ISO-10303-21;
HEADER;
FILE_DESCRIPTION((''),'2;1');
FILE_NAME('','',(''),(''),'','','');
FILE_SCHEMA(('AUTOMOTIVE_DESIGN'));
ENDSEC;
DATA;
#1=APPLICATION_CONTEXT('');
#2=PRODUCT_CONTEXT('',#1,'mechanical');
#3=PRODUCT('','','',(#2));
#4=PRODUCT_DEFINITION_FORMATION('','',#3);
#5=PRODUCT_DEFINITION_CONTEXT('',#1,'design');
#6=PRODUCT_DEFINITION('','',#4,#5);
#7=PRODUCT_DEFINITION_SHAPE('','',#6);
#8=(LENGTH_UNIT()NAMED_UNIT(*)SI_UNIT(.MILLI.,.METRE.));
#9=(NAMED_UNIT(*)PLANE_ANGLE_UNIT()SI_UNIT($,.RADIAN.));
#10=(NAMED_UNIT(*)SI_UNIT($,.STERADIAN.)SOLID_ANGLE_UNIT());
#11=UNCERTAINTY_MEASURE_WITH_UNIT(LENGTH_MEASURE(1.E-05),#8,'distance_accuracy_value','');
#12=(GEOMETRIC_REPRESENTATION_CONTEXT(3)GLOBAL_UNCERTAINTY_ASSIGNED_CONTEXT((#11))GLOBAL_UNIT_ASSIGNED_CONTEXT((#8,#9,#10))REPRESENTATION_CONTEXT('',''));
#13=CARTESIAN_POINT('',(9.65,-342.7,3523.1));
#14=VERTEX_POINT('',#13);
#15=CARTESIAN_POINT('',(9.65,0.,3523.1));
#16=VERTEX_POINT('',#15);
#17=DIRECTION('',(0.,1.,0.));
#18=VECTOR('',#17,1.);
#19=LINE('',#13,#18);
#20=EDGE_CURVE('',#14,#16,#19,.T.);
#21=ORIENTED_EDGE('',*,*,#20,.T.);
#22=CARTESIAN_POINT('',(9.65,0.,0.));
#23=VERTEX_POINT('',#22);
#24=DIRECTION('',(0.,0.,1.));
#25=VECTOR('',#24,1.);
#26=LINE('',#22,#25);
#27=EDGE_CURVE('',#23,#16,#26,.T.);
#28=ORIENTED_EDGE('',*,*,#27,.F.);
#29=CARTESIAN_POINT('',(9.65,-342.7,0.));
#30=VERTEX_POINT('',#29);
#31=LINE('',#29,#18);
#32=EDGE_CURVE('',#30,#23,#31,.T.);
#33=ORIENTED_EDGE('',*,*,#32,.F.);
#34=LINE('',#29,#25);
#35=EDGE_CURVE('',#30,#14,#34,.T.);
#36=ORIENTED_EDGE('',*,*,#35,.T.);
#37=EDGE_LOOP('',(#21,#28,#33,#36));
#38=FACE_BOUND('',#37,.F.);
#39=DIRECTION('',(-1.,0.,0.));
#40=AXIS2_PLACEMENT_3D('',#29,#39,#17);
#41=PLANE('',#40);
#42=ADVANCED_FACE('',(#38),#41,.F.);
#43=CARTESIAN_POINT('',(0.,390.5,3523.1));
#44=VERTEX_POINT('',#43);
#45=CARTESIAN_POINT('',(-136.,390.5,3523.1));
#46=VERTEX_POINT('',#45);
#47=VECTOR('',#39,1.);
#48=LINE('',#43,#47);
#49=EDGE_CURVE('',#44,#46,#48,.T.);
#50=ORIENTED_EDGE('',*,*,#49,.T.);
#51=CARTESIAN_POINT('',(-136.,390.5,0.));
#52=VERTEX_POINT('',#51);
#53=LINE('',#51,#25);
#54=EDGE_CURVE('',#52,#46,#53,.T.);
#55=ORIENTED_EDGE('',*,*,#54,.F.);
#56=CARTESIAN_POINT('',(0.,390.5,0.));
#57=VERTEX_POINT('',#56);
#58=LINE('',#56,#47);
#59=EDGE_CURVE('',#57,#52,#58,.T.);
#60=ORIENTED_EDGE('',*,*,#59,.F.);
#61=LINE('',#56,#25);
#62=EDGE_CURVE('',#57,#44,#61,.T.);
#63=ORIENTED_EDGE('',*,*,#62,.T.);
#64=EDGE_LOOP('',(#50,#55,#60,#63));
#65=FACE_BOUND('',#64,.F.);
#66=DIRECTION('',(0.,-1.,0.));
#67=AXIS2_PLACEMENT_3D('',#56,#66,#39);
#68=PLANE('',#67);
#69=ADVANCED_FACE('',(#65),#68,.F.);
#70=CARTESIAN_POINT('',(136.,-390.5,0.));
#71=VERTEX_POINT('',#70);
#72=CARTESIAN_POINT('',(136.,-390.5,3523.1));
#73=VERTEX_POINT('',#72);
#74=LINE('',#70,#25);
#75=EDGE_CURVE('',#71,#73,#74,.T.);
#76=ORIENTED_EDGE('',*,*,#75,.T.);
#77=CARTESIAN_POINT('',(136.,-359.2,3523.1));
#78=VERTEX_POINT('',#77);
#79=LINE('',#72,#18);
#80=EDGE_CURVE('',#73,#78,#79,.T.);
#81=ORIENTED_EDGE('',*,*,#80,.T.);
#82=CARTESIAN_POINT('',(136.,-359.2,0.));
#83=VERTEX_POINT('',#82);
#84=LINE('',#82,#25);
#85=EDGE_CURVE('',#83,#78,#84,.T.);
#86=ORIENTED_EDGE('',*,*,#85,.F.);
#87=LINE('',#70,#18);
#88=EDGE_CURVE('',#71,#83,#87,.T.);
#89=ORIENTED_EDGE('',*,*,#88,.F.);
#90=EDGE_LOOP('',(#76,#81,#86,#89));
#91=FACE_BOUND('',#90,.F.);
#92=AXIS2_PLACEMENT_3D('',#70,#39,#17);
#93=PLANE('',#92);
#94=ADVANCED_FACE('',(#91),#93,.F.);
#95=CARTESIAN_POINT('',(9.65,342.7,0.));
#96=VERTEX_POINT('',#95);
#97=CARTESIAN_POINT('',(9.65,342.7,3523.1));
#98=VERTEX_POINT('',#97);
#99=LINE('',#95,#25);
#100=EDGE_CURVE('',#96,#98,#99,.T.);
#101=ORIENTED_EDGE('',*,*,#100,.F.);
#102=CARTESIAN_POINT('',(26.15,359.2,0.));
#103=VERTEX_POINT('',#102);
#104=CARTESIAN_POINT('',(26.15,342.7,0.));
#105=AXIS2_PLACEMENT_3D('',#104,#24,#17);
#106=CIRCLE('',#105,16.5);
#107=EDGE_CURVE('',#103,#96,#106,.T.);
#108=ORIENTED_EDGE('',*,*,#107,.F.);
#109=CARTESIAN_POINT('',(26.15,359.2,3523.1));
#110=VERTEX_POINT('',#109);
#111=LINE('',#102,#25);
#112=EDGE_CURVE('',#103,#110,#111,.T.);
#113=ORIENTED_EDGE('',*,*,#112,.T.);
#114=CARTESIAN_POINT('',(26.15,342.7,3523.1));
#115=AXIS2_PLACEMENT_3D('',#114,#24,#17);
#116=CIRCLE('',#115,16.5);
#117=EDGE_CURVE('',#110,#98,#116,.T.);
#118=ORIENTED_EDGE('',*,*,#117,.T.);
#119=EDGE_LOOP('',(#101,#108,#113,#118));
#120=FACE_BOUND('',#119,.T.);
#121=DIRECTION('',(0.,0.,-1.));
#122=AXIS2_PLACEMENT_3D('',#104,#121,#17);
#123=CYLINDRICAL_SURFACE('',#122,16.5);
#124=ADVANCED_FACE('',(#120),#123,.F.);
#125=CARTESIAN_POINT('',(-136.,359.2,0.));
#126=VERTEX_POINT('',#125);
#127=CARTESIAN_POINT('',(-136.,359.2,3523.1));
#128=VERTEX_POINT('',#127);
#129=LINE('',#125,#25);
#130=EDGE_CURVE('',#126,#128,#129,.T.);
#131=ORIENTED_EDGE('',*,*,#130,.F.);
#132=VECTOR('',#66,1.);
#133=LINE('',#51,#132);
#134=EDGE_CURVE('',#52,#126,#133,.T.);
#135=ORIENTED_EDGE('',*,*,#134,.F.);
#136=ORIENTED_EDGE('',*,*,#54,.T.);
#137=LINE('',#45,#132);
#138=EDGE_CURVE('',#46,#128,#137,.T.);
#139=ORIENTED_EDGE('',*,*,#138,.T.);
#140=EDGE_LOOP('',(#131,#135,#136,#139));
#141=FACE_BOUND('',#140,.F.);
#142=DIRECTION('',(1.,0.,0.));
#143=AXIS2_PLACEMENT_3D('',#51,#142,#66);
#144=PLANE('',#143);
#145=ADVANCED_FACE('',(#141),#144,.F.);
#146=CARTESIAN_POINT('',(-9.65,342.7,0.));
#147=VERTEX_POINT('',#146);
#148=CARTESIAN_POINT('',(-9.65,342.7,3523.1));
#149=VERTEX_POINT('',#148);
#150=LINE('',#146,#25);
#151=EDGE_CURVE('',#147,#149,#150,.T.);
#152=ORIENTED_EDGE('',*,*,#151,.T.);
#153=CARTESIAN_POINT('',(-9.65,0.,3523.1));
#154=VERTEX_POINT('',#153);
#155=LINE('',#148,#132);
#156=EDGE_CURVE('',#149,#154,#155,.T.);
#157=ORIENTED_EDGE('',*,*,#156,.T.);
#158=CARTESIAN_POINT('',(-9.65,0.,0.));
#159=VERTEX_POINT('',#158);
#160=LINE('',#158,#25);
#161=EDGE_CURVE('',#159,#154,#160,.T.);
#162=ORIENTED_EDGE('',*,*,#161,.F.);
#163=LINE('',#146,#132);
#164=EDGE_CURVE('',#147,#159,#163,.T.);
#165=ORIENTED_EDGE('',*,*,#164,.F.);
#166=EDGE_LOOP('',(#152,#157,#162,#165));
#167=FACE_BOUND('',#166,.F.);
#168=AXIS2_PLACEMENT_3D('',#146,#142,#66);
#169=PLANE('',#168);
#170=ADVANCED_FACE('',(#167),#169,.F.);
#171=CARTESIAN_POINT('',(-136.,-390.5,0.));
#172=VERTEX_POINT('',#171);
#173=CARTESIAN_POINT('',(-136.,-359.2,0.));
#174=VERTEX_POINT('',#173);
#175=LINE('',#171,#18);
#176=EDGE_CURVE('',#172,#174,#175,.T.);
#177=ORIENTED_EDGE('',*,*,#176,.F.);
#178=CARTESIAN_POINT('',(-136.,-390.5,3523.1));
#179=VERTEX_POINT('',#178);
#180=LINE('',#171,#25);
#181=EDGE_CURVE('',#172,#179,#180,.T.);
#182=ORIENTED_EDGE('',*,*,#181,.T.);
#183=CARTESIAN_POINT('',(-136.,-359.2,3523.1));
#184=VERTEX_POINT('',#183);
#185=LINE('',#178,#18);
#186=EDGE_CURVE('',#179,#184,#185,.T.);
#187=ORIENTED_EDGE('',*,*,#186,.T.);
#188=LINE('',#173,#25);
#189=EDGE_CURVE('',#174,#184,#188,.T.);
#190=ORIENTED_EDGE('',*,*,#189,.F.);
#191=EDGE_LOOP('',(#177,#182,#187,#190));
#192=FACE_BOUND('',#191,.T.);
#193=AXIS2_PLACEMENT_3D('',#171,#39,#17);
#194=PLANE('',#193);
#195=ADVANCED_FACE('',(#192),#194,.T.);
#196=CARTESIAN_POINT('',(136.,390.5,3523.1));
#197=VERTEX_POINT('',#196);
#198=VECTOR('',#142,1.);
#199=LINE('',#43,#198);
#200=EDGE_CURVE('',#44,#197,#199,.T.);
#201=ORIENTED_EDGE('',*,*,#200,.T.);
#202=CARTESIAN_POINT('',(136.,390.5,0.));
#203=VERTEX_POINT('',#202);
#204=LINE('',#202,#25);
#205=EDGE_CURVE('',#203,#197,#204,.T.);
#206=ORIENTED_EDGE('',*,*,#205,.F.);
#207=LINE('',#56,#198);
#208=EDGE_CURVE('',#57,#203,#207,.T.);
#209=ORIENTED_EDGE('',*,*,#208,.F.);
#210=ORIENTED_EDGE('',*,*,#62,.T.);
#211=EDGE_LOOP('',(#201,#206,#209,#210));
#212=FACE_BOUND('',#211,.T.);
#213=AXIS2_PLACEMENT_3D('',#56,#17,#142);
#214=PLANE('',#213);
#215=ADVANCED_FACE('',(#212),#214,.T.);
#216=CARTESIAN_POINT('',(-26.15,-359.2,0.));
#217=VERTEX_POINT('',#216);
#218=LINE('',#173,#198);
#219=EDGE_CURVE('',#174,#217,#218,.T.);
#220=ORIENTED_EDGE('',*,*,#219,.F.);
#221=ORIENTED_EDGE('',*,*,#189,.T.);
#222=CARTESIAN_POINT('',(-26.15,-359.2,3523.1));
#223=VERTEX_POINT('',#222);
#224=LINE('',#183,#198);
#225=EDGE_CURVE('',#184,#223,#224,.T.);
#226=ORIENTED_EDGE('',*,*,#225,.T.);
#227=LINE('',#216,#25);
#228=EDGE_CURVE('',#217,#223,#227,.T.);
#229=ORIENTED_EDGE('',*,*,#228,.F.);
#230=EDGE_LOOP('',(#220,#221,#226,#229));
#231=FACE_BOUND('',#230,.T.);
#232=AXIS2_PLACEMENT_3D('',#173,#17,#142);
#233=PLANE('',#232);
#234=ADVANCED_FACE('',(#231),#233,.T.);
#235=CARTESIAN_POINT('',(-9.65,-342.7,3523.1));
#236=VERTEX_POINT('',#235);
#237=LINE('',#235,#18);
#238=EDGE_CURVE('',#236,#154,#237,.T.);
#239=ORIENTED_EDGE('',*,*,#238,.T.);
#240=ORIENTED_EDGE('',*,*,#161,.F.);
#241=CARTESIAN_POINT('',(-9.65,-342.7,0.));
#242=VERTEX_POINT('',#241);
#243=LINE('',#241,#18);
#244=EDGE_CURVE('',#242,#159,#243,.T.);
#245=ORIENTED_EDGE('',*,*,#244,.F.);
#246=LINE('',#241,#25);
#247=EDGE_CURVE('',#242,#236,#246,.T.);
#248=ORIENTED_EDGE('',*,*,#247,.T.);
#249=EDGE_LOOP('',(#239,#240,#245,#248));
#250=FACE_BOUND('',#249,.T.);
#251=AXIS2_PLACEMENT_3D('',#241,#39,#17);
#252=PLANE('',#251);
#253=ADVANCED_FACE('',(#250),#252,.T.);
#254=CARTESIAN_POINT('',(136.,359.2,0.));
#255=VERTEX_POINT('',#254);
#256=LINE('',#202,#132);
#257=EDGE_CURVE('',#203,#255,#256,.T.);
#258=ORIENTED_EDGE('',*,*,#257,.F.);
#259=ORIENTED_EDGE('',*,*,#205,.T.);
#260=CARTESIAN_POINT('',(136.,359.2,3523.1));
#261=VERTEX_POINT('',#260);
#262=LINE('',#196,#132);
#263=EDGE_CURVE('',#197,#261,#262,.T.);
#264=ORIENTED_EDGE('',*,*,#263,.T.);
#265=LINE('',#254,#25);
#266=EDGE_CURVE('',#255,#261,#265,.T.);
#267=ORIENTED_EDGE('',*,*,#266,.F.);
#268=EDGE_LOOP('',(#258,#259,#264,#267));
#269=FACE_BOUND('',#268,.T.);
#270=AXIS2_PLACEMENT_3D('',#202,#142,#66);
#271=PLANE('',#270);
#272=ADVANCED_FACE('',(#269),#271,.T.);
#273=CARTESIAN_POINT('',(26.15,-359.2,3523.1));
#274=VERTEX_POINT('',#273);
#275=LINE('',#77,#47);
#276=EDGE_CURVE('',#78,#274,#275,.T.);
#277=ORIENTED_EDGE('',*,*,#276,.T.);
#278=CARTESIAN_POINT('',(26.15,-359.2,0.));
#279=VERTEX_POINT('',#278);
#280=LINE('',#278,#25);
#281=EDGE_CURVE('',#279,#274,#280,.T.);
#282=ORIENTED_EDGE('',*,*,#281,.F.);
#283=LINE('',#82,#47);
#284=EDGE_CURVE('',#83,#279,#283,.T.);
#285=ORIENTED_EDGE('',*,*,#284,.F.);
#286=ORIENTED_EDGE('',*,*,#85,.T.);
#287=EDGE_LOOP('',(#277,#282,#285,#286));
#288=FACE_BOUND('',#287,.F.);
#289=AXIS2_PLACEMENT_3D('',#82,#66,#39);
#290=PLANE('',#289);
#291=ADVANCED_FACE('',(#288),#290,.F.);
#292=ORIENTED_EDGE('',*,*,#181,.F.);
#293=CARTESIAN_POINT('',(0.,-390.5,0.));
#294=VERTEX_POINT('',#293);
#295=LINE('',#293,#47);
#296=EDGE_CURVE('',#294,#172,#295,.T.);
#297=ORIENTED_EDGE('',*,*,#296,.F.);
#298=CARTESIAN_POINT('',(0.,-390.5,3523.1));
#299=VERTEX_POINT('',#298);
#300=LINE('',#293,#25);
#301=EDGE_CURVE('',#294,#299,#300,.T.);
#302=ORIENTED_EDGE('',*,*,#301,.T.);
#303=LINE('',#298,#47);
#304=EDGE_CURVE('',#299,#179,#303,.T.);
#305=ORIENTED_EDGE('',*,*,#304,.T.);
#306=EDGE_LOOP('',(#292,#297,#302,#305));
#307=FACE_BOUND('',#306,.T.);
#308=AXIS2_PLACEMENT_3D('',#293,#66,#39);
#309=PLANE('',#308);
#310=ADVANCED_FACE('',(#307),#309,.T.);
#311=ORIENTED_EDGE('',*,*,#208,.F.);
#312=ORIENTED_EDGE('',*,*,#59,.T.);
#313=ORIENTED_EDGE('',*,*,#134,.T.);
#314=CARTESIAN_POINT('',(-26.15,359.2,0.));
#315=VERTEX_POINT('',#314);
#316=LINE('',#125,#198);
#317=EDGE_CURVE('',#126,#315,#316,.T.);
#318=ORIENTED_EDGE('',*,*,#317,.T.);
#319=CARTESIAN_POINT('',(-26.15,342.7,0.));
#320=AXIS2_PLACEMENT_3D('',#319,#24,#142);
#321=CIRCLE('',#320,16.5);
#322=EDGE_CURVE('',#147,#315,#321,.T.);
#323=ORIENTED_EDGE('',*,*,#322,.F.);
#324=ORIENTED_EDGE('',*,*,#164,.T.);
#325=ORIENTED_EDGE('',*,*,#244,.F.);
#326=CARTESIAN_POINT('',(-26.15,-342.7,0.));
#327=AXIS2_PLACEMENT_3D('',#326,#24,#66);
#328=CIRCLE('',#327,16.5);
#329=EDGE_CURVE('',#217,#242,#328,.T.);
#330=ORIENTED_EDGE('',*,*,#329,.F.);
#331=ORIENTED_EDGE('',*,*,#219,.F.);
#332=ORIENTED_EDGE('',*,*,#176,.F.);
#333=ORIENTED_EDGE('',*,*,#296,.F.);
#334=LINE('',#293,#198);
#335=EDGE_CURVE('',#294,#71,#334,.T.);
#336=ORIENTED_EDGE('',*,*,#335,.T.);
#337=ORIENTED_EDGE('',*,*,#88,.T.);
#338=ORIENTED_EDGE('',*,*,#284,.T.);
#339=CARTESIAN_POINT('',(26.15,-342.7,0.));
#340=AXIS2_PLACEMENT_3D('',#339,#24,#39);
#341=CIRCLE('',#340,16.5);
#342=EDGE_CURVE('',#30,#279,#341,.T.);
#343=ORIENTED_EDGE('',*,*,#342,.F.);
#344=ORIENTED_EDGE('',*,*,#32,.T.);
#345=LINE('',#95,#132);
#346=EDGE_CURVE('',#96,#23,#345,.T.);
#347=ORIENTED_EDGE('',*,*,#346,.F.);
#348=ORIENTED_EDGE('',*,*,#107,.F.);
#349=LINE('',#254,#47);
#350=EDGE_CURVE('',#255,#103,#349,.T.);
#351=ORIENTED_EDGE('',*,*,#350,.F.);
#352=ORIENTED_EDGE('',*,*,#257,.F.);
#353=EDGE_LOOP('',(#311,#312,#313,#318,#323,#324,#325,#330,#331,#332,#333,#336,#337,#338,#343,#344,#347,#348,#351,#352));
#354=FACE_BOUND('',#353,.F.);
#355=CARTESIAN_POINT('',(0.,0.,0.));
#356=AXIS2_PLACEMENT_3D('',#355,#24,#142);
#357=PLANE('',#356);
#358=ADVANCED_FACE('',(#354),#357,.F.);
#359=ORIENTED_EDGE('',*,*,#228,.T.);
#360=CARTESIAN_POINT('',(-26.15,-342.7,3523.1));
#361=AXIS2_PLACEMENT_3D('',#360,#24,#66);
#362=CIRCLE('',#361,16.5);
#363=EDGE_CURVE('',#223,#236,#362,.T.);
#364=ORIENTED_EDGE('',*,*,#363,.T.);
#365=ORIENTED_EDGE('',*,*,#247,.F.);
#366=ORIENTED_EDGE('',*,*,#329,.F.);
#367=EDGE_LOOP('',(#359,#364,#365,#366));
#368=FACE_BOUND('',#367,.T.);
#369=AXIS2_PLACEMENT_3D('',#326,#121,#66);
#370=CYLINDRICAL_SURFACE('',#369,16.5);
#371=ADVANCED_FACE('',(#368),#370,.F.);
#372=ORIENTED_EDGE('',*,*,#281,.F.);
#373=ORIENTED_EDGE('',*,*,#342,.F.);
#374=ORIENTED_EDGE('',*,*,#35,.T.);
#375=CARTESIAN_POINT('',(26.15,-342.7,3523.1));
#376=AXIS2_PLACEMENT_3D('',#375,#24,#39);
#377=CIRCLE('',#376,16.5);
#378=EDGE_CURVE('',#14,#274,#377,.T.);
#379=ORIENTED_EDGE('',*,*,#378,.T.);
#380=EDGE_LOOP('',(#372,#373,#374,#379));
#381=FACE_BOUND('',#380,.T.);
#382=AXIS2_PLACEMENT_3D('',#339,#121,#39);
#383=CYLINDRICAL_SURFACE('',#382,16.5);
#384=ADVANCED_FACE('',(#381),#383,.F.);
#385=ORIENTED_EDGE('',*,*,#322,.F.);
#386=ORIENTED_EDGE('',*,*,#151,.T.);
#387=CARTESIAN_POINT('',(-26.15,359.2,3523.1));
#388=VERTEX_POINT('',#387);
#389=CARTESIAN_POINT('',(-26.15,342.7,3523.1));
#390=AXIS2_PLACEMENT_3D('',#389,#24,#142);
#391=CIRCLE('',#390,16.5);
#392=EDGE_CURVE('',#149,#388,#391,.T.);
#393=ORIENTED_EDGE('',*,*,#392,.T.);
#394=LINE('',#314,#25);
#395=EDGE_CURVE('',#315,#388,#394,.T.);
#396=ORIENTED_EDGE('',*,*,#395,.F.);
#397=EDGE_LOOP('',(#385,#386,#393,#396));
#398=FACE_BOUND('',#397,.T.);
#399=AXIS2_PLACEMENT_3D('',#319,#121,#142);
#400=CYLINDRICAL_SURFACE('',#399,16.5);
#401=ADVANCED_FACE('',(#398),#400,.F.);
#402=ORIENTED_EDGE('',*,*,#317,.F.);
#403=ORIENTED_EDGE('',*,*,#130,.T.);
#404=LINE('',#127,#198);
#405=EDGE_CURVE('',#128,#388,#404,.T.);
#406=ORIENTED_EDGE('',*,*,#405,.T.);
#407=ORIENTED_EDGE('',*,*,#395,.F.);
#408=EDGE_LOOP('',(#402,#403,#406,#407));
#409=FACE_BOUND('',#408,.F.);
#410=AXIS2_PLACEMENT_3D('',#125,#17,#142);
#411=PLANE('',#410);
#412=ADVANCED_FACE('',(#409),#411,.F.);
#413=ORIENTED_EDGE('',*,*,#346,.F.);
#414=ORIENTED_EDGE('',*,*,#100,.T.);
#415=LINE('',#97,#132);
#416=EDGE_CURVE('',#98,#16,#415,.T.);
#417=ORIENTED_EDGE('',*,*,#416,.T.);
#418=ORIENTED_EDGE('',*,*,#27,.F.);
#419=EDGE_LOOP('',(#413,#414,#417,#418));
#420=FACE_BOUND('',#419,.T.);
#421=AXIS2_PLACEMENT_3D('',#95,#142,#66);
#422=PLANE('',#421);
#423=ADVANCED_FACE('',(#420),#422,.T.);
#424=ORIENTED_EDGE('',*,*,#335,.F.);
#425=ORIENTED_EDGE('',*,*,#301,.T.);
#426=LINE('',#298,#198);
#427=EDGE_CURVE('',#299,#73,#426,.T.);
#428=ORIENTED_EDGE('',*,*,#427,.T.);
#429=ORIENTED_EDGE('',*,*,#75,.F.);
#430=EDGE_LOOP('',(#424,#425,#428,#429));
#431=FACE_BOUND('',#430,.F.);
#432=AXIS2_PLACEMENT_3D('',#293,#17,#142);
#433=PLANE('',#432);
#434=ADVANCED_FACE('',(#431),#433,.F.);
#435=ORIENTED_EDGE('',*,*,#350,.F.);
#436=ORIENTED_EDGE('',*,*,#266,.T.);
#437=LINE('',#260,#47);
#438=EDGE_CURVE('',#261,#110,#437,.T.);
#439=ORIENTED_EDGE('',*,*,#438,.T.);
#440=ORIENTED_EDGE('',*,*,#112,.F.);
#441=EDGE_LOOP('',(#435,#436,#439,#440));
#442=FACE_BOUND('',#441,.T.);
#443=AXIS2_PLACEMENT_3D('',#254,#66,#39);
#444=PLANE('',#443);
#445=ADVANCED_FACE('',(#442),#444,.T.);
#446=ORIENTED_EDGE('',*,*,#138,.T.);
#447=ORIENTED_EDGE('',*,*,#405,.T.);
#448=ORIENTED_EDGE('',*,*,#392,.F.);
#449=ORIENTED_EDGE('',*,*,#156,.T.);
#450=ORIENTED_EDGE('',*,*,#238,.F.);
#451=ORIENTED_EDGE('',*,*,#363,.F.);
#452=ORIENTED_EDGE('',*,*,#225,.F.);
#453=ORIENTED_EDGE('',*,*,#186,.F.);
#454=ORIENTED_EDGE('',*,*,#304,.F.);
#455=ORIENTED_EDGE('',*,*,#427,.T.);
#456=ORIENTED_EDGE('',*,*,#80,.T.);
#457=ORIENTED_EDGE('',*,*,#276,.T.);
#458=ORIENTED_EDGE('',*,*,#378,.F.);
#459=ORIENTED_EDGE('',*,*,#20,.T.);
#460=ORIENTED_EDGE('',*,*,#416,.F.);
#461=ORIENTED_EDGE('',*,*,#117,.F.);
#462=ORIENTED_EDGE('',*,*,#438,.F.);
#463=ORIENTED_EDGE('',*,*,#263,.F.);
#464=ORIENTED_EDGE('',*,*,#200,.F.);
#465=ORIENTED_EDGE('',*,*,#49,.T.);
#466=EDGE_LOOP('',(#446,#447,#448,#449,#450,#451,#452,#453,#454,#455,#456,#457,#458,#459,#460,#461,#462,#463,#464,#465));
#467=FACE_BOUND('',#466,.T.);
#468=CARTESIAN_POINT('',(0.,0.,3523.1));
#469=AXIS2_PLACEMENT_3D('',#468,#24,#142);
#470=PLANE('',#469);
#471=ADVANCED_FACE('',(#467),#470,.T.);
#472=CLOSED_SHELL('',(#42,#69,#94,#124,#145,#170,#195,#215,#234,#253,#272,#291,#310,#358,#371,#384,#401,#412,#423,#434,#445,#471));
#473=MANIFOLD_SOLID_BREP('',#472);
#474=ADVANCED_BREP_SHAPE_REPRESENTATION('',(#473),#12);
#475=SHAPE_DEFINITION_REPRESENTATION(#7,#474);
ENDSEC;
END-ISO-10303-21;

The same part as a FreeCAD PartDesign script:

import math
import FreeCAD as App
import Part
import Sketcher

V = App.Vector
Q = App.Units.Quantity

doc = App.newDocument("Part")
body = doc.addObject("PartDesign::Body", "Body")

# Sketch on XY plane
sketch1 = body.newObject("Sketcher::SketchObject", "Sketch")
sketch1.AttachmentSupport = (doc.getObject("XY_Plane"), [""])
sketch1.MapMode = "FlatFace"
sketch1.addGeometry([
    Part.LineSegment(V(-136, -359, 0), V(-136, -390, 0)),  # 0
    Part.LineSegment(V(-136, -390, 0), V(136, -390, 0)),  # 1
    Part.LineSegment(V(136, -390, 0), V(136, -359, 0)),  # 2
    Part.LineSegment(V(136, -359, 0), V(26, -359, 0)),  # 3
    Part.ArcOfCircle(Part.Circle(V(26, -343, 0), V(0, 0, 1), 16), math.radians(180), math.radians(270)),  # 4
    Part.LineSegment(V(10, -343, 0), V(10, 343, 0)),  # 5
    Part.ArcOfCircle(Part.Circle(V(26, 343, 0), V(0, 0, 1), 16), math.radians(90), math.radians(180)),  # 6
    Part.LineSegment(V(26, 359, 0), V(136, 359, 0)),  # 7
    Part.LineSegment(V(136, 359, 0), V(136, 390, 0)),  # 8
    Part.LineSegment(V(136, 390, 0), V(-136, 390, 0)),  # 9
    Part.LineSegment(V(-136, 390, 0), V(-136, 359, 0)),  # 10
    Part.LineSegment(V(-136, 359, 0), V(-26, 359, 0)),  # 11
    Part.ArcOfCircle(Part.Circle(V(-26, 343, 0), V(0, 0, 1), 16), math.radians(0), math.radians(90)),  # 12
    Part.LineSegment(V(-10, 343, 0), V(-10, -343, 0)),  # 13
    Part.ArcOfCircle(Part.Circle(V(-26, -343, 0), V(0, 0, 1), 16), math.radians(-90), math.radians(0)),  # 14
    Part.LineSegment(V(-26, -359, 0), V(-136, -359, 0)),  # 15
], False)
sketch1.addConstraint([
    Sketcher.Constraint("Coincident", 0, 2, 1, 1),
    Sketcher.Constraint("Coincident", 1, 2, 2, 1),
    Sketcher.Constraint("Coincident", 2, 2, 3, 1),
    Sketcher.Constraint("Tangent", 3, 2, 4, 2),
    Sketcher.Constraint("Tangent", 4, 1, 5, 1),
    Sketcher.Constraint("Tangent", 5, 2, 6, 2),
    Sketcher.Constraint("Tangent", 6, 1, 7, 1),
    Sketcher.Constraint("Coincident", 7, 2, 8, 1),
    Sketcher.Constraint("Coincident", 8, 2, 9, 1),
    Sketcher.Constraint("Coincident", 9, 2, 10, 1),
    Sketcher.Constraint("Coincident", 10, 2, 11, 1),
    Sketcher.Constraint("Tangent", 11, 2, 12, 2),
    Sketcher.Constraint("Tangent", 12, 1, 13, 1),
    Sketcher.Constraint("Tangent", 13, 2, 14, 2),
    Sketcher.Constraint("Tangent", 14, 1, 15, 1),
    Sketcher.Constraint("Coincident", 15, 2, 0, 1),
    Sketcher.Constraint("Vertical", 0),
    Sketcher.Constraint("Horizontal", 1),
    Sketcher.Constraint("Vertical", 2),
    Sketcher.Constraint("Horizontal", 3),
    Sketcher.Constraint("Vertical", 5),
    Sketcher.Constraint("Horizontal", 7),
    Sketcher.Constraint("Vertical", 8),
    Sketcher.Constraint("Horizontal", 9),
    Sketcher.Constraint("Vertical", 10),
    Sketcher.Constraint("Horizontal", 11),
    Sketcher.Constraint("Vertical", 13),
    Sketcher.Constraint("Horizontal", 15),
    Sketcher.Constraint("Equal", 4, 6),
    Sketcher.Constraint("Equal", 6, 12),
    Sketcher.Constraint("Equal", 12, 14),
    Sketcher.Constraint("Symmetric", 4, 3, 12, 3, -1, 1),
    Sketcher.Constraint("Symmetric", 0, 2, 8, 2, -1, 1),
    Sketcher.Constraint("Symmetric", 7, 2, 10, 2, -2),
    Sketcher.Constraint("Symmetric", 2, 2, 15, 2, -2),
    Sketcher.Constraint("Radius", 4, Q("16.5 mm")),
    Sketcher.Constraint("DistanceY", 0, 2, 0, 1, Q("31.3 mm")),
    Sketcher.Constraint("DistanceX", 0, 2, -1, 1, Q("136 mm")),
    Sketcher.Constraint("DistanceY", 0, 2, -1, 1, Q("390.5 mm")),
    Sketcher.Constraint("DistanceX", -1, 1, 4, 1, Q("9.65 mm")),
])
pad1 = body.newObject("PartDesign::Pad", "Pad")
pad1.Profile = sketch1
pad1.Length = 3523.1

doc.recompute()
